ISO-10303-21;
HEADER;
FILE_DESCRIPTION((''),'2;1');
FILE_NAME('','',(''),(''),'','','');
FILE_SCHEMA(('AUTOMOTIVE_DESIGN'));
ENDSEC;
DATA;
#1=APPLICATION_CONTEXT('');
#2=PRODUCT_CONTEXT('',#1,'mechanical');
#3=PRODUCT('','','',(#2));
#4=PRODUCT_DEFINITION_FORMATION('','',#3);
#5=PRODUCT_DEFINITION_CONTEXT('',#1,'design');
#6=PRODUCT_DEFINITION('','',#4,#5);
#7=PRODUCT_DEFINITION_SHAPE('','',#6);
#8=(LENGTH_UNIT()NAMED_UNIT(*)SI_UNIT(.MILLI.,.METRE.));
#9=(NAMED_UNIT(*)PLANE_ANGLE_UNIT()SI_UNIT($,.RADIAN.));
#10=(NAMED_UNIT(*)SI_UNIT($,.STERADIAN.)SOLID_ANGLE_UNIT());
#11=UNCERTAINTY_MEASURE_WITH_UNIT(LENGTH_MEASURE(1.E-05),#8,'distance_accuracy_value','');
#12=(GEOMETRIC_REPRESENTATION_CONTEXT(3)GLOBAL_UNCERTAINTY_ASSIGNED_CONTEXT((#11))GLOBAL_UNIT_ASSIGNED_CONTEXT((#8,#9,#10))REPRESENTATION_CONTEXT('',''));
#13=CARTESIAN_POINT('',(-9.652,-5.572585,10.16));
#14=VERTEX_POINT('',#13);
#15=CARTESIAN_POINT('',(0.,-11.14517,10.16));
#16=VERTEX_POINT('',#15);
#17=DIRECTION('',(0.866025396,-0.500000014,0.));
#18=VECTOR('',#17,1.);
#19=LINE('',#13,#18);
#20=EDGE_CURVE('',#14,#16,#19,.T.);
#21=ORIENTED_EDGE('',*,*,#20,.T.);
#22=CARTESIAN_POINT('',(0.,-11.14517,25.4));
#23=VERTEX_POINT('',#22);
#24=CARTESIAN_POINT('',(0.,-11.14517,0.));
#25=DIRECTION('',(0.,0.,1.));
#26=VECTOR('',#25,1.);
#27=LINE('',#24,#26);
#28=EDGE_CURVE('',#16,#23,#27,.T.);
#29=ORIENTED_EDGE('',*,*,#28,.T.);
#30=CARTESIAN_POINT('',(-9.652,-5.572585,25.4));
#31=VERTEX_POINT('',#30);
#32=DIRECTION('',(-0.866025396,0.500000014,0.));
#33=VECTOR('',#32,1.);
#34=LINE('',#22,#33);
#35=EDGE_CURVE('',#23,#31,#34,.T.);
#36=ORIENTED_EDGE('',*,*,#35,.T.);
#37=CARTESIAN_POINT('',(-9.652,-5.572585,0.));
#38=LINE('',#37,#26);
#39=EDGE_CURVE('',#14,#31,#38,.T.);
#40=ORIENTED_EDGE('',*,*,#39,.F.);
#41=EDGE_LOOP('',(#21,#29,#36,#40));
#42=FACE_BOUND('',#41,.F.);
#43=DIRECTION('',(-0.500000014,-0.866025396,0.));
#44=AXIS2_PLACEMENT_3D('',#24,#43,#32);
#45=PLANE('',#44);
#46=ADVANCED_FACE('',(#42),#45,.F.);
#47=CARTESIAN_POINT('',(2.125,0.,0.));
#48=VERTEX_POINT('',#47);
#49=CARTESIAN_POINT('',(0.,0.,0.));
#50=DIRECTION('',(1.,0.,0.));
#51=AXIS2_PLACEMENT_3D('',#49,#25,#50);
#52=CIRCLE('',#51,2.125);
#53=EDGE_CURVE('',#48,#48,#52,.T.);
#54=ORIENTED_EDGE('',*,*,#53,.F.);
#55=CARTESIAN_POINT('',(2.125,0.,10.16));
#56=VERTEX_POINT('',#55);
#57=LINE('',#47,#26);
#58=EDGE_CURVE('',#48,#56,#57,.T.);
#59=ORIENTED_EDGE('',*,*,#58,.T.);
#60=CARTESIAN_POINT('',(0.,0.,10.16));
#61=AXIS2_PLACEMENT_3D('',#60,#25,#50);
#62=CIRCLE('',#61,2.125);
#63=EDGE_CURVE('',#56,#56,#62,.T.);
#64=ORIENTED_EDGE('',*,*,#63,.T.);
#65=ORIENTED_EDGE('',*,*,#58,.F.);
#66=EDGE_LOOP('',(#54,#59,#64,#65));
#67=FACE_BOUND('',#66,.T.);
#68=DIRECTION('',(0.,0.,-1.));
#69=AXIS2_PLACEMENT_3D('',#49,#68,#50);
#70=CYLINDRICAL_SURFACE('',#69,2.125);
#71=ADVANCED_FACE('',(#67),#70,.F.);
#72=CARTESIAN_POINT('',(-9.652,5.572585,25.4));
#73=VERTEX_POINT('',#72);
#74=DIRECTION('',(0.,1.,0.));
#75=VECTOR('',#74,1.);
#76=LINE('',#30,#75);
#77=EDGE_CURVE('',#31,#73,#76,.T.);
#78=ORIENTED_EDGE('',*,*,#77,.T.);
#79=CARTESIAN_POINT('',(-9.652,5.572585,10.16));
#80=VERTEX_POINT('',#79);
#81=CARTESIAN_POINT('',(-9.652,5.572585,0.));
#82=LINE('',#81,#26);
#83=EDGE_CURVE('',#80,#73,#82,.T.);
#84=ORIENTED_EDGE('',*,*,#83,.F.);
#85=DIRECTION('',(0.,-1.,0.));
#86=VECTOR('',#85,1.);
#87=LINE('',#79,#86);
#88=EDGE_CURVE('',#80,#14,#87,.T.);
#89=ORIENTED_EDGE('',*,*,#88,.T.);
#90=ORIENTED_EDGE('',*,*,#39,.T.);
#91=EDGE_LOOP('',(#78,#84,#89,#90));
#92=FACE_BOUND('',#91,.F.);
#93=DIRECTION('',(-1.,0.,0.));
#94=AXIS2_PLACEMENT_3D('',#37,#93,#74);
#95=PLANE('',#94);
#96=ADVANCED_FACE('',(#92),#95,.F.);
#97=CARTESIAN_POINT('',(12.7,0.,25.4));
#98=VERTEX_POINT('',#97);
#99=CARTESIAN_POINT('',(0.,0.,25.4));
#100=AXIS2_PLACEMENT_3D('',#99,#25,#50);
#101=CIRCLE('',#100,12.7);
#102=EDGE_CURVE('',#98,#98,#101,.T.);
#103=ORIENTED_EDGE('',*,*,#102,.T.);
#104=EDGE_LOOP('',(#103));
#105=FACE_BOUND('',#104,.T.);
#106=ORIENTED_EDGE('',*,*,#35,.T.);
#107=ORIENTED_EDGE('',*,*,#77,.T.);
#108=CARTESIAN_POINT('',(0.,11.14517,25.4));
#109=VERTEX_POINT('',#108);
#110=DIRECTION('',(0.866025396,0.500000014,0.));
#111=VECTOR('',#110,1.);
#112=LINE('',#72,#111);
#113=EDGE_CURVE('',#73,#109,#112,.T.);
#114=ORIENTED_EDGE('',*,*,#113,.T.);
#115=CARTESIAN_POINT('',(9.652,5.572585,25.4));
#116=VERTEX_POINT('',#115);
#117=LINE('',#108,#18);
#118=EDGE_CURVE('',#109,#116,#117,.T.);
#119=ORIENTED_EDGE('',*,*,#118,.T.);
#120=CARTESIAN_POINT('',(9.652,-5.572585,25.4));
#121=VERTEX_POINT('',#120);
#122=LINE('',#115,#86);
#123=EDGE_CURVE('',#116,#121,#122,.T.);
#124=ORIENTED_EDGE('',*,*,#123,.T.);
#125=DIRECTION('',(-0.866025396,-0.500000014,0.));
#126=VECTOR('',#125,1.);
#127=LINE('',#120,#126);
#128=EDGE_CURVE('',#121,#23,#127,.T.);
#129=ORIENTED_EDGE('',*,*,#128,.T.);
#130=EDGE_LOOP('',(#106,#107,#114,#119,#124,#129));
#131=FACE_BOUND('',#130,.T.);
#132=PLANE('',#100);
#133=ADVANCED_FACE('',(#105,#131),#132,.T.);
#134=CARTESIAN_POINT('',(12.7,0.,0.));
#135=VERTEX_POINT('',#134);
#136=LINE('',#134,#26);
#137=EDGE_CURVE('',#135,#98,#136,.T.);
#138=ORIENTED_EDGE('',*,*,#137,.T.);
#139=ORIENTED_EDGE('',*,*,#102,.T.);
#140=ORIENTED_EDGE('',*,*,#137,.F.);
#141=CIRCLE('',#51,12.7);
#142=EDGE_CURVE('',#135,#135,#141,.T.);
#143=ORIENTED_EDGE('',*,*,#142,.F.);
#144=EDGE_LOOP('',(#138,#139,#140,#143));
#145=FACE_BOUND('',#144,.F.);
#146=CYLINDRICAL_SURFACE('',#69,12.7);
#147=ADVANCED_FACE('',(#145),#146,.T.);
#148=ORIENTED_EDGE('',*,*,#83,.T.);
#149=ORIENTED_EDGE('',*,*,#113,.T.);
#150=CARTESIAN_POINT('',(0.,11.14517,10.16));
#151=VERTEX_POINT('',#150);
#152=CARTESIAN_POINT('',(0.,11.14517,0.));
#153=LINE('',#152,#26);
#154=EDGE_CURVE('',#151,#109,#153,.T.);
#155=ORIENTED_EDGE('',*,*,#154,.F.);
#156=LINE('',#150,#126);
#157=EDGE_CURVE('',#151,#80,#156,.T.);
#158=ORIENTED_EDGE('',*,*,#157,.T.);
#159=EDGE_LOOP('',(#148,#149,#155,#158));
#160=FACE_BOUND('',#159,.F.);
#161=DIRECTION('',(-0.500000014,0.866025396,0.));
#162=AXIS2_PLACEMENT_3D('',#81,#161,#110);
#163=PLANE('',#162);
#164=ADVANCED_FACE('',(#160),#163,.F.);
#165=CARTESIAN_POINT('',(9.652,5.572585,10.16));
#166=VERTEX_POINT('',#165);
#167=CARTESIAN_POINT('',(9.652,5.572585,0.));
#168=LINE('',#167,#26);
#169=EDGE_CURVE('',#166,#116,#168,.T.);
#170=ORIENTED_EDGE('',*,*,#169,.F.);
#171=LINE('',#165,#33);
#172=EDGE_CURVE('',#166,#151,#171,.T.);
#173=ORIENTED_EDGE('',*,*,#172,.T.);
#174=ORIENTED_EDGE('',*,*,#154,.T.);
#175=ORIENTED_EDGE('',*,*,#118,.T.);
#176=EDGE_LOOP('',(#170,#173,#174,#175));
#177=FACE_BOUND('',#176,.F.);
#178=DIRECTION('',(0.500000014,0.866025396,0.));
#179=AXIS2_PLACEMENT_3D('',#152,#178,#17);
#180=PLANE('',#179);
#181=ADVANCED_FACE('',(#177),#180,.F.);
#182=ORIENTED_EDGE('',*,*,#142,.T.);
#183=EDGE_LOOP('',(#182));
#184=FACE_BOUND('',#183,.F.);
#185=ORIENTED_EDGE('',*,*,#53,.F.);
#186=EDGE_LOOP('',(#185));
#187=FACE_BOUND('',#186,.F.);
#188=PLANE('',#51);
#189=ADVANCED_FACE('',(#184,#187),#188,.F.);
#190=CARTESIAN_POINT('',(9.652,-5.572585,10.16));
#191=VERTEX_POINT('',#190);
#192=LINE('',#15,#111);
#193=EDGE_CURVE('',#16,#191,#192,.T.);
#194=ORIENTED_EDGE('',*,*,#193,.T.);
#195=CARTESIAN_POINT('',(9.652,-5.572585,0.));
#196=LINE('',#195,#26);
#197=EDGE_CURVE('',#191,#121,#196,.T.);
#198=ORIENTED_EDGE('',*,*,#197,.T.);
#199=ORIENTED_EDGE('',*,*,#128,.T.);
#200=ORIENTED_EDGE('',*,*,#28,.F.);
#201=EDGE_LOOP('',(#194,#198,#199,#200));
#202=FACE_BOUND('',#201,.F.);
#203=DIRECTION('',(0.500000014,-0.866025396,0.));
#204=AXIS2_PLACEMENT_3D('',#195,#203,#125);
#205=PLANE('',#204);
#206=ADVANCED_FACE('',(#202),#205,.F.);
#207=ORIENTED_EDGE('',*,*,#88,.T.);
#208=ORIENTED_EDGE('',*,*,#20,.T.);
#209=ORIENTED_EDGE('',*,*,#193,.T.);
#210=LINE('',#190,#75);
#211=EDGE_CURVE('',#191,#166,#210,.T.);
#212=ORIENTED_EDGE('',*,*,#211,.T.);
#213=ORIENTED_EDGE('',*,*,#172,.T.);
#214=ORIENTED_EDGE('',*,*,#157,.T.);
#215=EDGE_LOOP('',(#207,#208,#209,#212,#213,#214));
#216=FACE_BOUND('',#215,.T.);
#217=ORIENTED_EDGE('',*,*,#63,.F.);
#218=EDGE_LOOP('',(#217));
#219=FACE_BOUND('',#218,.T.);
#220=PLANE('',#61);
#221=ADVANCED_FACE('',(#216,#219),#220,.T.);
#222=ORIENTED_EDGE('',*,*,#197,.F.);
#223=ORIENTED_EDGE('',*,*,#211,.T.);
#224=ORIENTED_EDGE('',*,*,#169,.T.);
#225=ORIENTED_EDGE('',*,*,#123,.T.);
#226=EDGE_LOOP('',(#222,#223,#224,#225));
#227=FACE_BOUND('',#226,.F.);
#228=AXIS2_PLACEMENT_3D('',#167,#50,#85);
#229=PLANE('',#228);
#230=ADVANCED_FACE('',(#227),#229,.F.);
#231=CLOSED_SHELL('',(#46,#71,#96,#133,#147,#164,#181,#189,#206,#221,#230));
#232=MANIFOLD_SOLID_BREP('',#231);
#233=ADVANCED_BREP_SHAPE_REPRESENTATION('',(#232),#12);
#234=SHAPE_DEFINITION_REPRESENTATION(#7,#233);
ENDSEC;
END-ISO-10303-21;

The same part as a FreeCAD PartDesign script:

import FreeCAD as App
import Part
import Sketcher

V = App.Vector
Q = App.Units.Quantity

doc = App.newDocument("Part")
body = doc.addObject("PartDesign::Body", "Body")

# Sketch on XY plane
sketch1 = doc.addObject("Sketcher::SketchObject", "Sketch")
body.addObject(sketch1)
sketch1.AttachmentSupport = (doc.XY_Plane, [""])
sketch1.MapMode = "FlatFace"
sketch1.addGeometry([
    Part.Circle(V(0, 0, 0), V(0, 0, 1), 12.7),  # 0
    Part.LineSegment(V(-9.652, 5.572585, 0), V(0, 11.14517, 0)),  # 1
    Part.LineSegment(V(0, 11.14517, 0), V(9.652, 5.572585, 0)),  # 2
    Part.LineSegment(V(9.652, 5.572585, 0), V(9.652, -5.572585, 0)),  # 3
    Part.LineSegment(V(9.652, -5.572585, 0), V(0, -11.14517, 0)),  # 4
    Part.LineSegment(V(0, -11.14517, 0), V(-9.652, -5.572585, 0)),  # 5
    Part.LineSegment(V(-9.652, -5.572585, 0), V(-9.652, 5.572585, 0)),  # 6
], False)
sketch1.addConstraint([
    Sketcher.Constraint("Coincident", 1, 2, 2, 1),
    Sketcher.Constraint("Coincident", 2, 2, 3, 1),
    Sketcher.Constraint("Coincident", 3, 2, 4, 1),
    Sketcher.Constraint("Coincident", 4, 2, 5, 1),
    Sketcher.Constraint("Coincident", 5, 2, 6, 1),
    Sketcher.Constraint("Coincident", 6, 2, 1, 1),
    Sketcher.Constraint("Vertical", 3),
    Sketcher.Constraint("Vertical", 6),
    Sketcher.Constraint("Coincident", 0, 3, -1, 1),
    Sketcher.Constraint("Symmetric", 1, 2, 4, 2, -1, 1),
    Sketcher.Constraint("Symmetric", 2, 2, 5, 2, -1, 1),
    Sketcher.Constraint("PointOnObject", 1, 2, -2),
    Sketcher.Constraint("Parallel", 1, 4),
    Sketcher.Constraint("Horizontal", 3, 2, 5, 2),
    Sketcher.Constraint("Diameter", 0, Q("1 in")),
    Sketcher.Constraint("Angle", 1, Q("30.000001 deg")),
    Sketcher.Constraint("DistanceX", -1, 1, 2, 2, Q("0.38 in")),
    Sketcher.Constraint("DistanceY", 3, 2, 3, 1, Q("11.14517 mm")),
])
pad1 = doc.addObject("PartDesign::Pad", "Pad")
body.addObject(pad1)
pad1.Profile = sketch1
pad1.Length = Q("1 in")

# Sketch on XY plane
sketch2 = doc.addObject("Sketcher::SketchObject", "Sketch001")
body.addObject(sketch2)
sketch2.AttachmentSupport = (doc.XY_Plane, [""])
sketch2.MapMode = "FlatFace"
sketch2.addGeometry([
    Part.LineSegment(V(9.652, -5.572585, 0), V(9.652, 5.572585, 0)),  # 0
    Part.LineSegment(V(9.652, 5.572585, 0), V(0, 11.14517, 0)),  # 1
    Part.LineSegment(V(0, 11.14517, 0), V(-9.652, 5.572585, 0)),  # 2
    Part.LineSegment(V(-9.652, 5.572585, 0), V(-9.652, -5.572585, 0)),  # 3
    Part.LineSegment(V(-9.652, -5.572585, 0), V(0, -11.14517, 0)),  # 4
    Part.LineSegment(V(0, -11.14517, 0), V(9.652, -5.572585, 0)),  # 5
    Part.Circle(V(0, 0, 0), V(0, 0, 1), 2.125),  # 6
], False)
sketch2.addConstraint([
    Sketcher.Constraint("Coincident", 0, 2, 1, 1),
    Sketcher.Constraint("Coincident", 1, 2, 2, 1),
    Sketcher.Constraint("Coincident", 2, 2, 3, 1),
    Sketcher.Constraint("Coincident", 3, 2, 4, 1),
    Sketcher.Constraint("Coincident", 4, 2, 5, 1),
    Sketcher.Constraint("Coincident", 5, 2, 0, 1),
    Sketcher.Constraint("Vertical", 0),
    Sketcher.Constraint("Vertical", 3),
    Sketcher.Constraint("Coincident", 6, 3, -1, 1),
    Sketcher.Constraint("Symmetric", 0, 2, 3, 2, -1, 1),
    Sketcher.Constraint("Symmetric", 1, 2, 4, 2, -1, 1),
    Sketcher.Constraint("PointOnObject", 1, 2, -2),
    Sketcher.Constraint("Parallel", 2, 5),
    Sketcher.Constraint("Horizontal", 0, 2, 2, 2),
    Sketcher.Constraint("Angle", 1, Q("149.999999 deg")),
    Sketcher.Constraint("Diameter", 6, Q("4.25 mm")),
    Sketcher.Constraint("DistanceX", -1, 1, 0, 2, Q("0.38 in")),
    Sketcher.Constraint("DistanceY", 0, 1, 0, 2, Q("11.14517 mm")),
])
pad2 = doc.addObject("PartDesign::Pad", "Pad001")
body.addObject(pad2)
pad2.Profile = sketch2
pad2.Length = Q("0.4 in")

doc.recompute()
